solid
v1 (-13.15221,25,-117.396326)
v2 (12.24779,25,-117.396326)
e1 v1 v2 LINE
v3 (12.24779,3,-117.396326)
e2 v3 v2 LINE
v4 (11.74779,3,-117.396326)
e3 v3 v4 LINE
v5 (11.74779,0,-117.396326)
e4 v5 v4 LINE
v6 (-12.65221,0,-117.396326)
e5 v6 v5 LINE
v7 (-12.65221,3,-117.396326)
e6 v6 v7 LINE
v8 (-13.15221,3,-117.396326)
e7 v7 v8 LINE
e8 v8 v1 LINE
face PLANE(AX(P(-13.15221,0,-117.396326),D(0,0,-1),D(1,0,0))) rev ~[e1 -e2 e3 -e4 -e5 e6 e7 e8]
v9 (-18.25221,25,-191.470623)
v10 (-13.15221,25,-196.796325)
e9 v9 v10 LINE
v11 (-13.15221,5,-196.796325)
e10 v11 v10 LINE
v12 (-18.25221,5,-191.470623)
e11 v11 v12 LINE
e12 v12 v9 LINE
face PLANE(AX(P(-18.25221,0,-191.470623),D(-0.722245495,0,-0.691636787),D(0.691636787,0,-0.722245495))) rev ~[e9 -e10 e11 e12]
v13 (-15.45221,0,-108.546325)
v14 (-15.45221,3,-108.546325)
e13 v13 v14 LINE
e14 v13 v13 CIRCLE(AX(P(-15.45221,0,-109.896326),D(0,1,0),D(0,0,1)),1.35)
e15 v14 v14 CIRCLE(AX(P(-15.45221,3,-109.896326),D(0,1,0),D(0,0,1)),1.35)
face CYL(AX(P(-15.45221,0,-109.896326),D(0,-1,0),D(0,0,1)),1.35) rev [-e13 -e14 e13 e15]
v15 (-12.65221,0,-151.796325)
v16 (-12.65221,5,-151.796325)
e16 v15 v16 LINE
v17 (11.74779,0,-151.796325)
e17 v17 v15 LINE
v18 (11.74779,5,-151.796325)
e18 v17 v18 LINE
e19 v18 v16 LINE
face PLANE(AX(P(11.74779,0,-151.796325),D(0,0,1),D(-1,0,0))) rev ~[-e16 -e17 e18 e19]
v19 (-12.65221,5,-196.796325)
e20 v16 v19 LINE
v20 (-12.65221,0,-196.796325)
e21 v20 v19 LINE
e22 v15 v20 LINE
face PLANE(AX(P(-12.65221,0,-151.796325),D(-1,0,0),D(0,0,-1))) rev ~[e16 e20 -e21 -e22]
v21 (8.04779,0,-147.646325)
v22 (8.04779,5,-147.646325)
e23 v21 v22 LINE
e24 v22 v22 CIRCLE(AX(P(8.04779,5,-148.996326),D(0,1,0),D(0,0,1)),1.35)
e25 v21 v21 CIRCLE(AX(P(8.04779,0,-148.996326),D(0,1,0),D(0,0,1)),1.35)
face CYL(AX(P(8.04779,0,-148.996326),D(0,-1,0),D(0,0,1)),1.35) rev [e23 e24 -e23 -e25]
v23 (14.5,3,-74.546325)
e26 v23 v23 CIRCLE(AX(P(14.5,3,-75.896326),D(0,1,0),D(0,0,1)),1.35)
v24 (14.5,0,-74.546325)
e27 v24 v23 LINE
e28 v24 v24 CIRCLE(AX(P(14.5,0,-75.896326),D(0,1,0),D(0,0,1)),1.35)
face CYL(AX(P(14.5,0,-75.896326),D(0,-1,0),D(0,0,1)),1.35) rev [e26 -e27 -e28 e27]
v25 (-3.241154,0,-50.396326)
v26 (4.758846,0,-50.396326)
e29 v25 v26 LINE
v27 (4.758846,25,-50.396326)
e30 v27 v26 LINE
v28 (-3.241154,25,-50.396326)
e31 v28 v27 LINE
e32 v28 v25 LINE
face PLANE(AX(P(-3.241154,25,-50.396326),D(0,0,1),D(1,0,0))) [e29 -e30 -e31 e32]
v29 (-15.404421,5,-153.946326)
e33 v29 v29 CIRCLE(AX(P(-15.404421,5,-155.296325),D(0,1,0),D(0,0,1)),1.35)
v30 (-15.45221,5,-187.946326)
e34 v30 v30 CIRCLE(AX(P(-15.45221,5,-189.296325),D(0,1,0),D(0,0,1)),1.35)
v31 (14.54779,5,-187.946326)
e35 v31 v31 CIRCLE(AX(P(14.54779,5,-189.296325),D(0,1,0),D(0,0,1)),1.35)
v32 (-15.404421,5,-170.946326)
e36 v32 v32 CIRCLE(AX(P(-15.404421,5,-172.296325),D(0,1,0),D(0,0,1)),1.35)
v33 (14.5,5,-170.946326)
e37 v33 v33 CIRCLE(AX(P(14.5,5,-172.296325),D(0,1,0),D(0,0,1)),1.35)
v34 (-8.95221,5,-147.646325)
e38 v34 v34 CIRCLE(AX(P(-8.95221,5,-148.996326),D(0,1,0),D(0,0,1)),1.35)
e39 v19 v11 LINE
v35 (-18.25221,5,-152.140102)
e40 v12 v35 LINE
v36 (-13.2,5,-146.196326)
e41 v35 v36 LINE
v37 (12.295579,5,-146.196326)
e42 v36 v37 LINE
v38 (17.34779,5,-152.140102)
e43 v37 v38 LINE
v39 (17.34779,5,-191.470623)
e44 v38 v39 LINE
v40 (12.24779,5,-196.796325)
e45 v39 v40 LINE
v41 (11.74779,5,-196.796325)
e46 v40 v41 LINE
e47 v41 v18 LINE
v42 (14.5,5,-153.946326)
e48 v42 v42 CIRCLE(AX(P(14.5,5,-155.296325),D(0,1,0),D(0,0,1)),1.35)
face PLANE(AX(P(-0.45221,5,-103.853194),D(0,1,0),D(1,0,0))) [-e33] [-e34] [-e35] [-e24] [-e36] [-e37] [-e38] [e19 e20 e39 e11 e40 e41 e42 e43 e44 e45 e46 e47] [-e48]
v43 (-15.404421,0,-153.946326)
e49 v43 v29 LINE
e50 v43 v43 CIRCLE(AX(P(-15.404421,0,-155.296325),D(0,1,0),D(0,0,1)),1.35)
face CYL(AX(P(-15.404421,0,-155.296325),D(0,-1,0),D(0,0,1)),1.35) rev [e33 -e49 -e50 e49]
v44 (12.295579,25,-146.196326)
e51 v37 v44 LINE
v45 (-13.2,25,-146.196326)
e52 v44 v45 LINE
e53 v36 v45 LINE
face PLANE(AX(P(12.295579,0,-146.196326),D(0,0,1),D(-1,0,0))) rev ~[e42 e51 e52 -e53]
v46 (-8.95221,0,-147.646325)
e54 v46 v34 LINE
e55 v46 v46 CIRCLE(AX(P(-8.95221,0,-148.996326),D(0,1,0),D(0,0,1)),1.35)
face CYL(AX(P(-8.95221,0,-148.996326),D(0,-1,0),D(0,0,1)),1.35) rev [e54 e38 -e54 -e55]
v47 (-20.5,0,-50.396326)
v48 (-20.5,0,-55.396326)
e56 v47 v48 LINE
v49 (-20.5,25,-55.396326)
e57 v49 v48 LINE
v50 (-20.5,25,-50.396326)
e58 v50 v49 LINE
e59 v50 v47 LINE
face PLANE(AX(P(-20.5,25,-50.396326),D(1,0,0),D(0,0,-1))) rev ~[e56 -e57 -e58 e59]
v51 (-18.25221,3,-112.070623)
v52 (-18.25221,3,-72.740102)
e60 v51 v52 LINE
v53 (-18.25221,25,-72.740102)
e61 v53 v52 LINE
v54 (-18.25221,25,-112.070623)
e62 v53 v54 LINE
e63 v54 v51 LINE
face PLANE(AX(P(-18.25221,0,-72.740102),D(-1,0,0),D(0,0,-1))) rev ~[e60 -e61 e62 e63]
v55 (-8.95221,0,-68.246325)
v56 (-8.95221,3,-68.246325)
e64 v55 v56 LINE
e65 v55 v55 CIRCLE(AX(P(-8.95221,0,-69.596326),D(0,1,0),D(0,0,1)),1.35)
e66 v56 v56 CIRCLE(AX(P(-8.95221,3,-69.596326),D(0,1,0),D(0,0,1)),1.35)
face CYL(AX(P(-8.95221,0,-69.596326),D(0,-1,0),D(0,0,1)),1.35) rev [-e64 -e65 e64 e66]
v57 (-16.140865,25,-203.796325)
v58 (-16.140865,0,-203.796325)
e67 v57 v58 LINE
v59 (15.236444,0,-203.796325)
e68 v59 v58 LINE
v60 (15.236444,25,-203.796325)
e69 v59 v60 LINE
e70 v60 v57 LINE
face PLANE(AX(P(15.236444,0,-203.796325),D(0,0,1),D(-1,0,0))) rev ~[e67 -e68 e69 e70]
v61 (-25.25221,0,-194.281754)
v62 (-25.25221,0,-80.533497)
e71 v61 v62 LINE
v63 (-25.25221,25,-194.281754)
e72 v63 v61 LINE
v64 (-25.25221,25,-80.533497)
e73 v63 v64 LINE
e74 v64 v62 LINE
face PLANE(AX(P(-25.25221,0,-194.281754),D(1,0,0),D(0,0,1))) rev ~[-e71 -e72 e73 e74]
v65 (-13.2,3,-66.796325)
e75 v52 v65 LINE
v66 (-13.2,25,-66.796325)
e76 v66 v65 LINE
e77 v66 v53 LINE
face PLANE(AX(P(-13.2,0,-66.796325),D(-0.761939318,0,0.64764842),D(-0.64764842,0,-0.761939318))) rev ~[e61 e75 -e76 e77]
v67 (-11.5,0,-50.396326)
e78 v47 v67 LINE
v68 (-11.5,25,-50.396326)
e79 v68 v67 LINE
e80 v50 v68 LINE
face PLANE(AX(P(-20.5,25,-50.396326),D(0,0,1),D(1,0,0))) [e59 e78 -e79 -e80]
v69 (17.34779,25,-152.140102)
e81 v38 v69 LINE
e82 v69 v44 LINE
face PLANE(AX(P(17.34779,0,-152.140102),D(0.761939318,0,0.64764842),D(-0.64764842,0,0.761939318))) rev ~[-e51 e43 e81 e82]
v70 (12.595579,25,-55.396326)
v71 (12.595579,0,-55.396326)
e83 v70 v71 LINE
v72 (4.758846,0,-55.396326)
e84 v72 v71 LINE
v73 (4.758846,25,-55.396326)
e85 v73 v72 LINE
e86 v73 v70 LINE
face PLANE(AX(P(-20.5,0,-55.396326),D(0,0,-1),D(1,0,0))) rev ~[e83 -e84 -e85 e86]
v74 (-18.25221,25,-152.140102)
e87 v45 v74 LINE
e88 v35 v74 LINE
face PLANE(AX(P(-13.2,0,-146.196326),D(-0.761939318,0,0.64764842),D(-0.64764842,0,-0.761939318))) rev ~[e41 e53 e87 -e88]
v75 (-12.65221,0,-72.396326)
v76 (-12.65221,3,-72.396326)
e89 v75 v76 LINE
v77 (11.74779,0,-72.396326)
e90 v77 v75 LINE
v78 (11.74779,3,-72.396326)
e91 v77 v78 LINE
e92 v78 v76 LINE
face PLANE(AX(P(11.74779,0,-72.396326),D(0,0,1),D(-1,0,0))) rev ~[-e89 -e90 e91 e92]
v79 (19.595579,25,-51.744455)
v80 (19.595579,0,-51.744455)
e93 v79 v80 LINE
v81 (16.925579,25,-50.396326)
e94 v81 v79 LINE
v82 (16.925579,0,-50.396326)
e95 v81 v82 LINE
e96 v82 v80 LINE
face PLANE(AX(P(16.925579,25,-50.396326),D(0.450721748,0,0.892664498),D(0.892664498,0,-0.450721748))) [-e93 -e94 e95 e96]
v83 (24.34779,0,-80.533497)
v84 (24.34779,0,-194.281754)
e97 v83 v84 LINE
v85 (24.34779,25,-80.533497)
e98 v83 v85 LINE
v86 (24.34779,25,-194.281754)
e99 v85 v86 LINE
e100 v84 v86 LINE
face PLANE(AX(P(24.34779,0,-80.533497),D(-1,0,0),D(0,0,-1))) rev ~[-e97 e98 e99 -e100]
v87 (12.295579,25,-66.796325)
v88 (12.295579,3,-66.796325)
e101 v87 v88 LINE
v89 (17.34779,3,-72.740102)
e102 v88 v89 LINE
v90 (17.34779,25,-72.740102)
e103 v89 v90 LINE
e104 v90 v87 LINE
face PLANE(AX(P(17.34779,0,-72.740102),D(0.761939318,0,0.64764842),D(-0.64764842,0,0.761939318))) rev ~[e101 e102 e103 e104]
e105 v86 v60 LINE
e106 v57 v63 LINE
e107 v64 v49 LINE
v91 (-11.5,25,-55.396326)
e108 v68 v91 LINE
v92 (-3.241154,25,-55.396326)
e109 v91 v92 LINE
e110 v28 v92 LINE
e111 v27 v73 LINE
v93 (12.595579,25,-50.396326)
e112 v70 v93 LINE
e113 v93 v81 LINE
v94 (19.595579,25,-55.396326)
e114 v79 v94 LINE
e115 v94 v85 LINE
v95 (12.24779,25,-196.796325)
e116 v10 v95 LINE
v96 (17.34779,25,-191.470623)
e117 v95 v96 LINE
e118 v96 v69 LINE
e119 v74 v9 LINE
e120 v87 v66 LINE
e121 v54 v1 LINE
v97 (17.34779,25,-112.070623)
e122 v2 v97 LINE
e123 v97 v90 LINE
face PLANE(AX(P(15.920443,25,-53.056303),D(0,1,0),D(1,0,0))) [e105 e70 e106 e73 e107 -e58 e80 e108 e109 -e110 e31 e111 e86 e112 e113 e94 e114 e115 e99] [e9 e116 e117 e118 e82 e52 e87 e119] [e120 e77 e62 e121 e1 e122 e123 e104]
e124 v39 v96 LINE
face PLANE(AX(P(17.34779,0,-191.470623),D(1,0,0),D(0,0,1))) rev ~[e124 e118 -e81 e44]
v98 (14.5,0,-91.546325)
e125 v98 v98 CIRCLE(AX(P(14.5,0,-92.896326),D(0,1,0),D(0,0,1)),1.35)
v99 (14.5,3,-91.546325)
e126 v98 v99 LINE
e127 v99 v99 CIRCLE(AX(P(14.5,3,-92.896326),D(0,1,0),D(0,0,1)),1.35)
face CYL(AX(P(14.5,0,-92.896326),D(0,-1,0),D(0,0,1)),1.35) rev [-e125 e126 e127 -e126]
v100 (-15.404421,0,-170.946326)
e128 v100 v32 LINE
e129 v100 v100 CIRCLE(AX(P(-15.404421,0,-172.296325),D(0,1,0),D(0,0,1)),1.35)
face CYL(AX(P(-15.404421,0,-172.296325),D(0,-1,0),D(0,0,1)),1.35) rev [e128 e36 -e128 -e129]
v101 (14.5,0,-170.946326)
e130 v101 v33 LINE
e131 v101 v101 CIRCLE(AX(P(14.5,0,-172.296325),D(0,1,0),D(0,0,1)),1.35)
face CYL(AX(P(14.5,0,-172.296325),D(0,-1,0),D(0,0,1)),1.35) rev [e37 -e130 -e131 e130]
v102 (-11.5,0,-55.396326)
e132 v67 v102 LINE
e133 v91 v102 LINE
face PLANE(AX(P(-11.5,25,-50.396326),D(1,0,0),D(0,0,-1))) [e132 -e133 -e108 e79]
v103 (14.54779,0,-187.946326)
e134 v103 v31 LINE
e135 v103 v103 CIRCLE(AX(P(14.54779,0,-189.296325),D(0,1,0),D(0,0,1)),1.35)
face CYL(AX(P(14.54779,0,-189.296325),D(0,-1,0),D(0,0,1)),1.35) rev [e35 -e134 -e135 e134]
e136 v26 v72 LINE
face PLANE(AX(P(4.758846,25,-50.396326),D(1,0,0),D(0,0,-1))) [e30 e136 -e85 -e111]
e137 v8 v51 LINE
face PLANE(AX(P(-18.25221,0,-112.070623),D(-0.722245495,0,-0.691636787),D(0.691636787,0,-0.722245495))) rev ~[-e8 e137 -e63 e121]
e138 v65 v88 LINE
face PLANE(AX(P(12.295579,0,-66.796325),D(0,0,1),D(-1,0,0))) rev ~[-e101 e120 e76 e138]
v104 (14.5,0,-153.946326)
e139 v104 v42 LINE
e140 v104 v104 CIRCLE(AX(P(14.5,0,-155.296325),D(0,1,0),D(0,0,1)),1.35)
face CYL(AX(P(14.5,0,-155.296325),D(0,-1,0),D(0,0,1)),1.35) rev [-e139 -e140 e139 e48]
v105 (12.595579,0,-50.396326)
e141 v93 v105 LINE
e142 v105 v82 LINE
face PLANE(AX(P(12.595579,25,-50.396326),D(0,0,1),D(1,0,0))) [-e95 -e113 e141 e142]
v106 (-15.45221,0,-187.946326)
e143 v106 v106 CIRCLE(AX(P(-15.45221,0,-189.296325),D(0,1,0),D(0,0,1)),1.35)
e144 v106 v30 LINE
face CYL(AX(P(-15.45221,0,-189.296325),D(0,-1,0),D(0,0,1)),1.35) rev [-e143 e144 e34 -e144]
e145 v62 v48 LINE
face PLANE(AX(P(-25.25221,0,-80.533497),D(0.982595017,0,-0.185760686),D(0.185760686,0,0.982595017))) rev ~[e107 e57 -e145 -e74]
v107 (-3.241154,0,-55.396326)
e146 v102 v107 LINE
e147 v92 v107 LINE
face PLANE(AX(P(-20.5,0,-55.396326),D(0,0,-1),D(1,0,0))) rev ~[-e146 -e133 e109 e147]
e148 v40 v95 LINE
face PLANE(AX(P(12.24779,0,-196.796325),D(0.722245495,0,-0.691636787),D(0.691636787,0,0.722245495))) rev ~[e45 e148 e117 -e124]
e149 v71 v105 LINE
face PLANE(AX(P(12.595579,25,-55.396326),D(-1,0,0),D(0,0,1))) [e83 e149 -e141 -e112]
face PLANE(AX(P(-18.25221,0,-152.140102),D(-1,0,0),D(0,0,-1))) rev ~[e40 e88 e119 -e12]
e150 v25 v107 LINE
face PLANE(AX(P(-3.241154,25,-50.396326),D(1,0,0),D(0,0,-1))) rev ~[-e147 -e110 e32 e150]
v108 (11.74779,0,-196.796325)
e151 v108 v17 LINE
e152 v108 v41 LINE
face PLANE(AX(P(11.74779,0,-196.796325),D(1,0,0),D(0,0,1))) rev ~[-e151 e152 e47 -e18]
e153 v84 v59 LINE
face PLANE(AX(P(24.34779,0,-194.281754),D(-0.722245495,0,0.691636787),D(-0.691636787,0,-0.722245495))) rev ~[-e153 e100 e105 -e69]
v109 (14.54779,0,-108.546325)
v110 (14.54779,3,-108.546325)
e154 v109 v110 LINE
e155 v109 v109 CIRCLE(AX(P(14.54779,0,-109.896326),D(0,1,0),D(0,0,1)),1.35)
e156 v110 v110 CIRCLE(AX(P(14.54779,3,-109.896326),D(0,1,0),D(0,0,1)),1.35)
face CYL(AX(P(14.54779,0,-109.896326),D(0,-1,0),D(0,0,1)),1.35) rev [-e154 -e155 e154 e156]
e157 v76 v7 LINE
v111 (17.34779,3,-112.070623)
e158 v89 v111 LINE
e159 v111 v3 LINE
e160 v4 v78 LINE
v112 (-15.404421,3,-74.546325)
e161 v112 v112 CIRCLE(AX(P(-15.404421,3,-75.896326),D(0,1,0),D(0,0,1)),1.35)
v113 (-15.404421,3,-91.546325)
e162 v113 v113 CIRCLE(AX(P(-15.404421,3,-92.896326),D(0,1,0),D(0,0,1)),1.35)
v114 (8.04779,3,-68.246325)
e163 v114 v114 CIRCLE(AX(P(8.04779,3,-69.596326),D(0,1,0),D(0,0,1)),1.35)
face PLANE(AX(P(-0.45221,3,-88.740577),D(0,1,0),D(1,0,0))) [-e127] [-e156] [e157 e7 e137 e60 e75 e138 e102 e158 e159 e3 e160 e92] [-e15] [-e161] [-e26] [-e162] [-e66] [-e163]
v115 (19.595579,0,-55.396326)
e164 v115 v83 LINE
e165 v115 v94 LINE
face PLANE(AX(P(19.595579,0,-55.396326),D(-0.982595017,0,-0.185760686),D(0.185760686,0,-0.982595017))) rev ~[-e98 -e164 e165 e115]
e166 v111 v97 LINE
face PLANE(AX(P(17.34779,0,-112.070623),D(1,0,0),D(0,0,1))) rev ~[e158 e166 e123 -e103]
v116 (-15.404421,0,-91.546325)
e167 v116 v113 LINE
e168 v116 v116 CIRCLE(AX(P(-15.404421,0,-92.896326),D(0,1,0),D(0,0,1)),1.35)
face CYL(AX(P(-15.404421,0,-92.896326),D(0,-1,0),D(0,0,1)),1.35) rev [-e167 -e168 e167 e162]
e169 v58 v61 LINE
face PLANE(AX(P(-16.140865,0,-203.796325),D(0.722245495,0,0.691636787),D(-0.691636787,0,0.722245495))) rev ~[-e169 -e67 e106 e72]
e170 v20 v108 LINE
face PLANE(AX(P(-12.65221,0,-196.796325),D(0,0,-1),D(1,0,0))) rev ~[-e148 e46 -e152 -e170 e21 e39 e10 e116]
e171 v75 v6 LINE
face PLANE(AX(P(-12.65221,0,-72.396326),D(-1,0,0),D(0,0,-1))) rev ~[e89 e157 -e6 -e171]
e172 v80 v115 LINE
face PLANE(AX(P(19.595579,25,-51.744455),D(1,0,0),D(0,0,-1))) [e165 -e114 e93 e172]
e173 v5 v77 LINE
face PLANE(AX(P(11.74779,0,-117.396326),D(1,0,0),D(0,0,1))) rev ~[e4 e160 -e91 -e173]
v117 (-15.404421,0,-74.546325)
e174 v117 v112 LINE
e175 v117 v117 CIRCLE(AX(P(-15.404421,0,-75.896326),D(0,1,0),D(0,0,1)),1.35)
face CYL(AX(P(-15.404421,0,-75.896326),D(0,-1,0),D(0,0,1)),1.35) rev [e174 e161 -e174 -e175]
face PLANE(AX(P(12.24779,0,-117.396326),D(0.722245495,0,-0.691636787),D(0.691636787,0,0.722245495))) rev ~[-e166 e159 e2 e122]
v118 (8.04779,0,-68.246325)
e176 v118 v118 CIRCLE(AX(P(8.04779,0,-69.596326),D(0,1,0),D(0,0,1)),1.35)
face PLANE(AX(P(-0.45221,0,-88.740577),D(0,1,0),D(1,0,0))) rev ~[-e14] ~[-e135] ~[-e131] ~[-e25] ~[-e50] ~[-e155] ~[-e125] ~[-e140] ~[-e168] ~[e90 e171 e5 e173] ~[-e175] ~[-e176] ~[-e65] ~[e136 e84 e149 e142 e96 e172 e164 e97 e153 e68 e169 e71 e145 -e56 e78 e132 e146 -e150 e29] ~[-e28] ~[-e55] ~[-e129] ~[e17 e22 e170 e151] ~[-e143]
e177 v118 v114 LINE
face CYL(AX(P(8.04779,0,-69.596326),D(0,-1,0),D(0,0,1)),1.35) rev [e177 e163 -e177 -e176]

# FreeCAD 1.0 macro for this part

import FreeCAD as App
import Part
import Sketcher
from FreeCAD import Vector
Q = App.Units.Quantity

doc = App.newDocument("Part")
body = doc.addObject("PartDesign::Body", "Body")

# Sketch on XZ plane
sketch1 = body.newObject("Sketcher::SketchObject", "Sketch")
sketch1.AttachmentSupport = (doc.getObject("XZ_Plane"), [""])
sketch1.MapMode = "FlatFace"
sketch1.addGeometry([
    Part.LineSegment(Vector(-20.5, -55.4, 0), Vector(19.6, -55.4, 0)),  # 0
    Part.LineSegment(Vector(19.6, -55.4, 0), Vector(24.3, -80.5, 0)),  # 1
    Part.LineSegment(Vector(24.3, -80.5, 0), Vector(24.3, -194.3, 0)),  # 2
    Part.LineSegment(Vector(24.3, -194.3, 0), Vector(15.2, -203.8, 0)),  # 3
    Part.LineSegment(Vector(15.2, -203.8, 0), Vector(-16.1, -203.8, 0)),  # 4
    Part.LineSegment(Vector(-16.1, -203.8, 0), Vector(-25.3, -194.3, 0)),  # 5
    Part.LineSegment(Vector(-25.3, -194.3, 0), Vector(-25.3, -80.5, 0)),  # 6
    Part.LineSegment(Vector(-25.3, -80.5, 0), Vector(-20.5, -55.4, 0)),  # 7
    Part.LineSegment(Vector(-18.3, -112.1, 0), Vector(-13.2, -117.4, 0)),  # 8
    Part.LineSegment(Vector(-13.2, -117.4, 0), Vector(12.2, -117.4, 0)),  # 9
    Part.LineSegment(Vector(12.2, -117.4, 0), Vector(17.3, -112.1, 0)),  # 10
    Part.LineSegment(Vector(17.3, -112.1, 0), Vector(17.3, -72.7, 0)),  # 11
    Part.LineSegment(Vector(17.3, -72.7, 0), Vector(12.3, -66.8, 0)),  # 12
    Part.LineSegment(Vector(12.3, -66.8, 0), Vector(-13.2, -66.8, 0)),  # 13
    Part.LineSegment(Vector(-13.2, -66.8, 0), Vector(-18.3, -72.7, 0)),  # 14
    Part.LineSegment(Vector(-18.3, -72.7, 0), Vector(-18.3, -112.1, 0)),  # 15
    Part.Circle(Vector(-15.4, -155.3, 0), Vector(0, 0, 1), 1.4),  # 16
    Part.Circle(Vector(-9, -149, 0), Vector(0, 0, 1), 1.4),  # 17
    Part.Circle(Vector(-15.4, -172.3, 0), Vector(0, 0, 1), 1.4),  # 18
    Part.Circle(Vector(-15.5, -189.3, 0), Vector(0, 0, 1), 1.4),  # 19
    Part.Circle(Vector(8, -149, 0), Vector(0, 0, 1), 1.4),  # 20
    Part.Circle(Vector(14.5, -155.3, 0), Vector(0, 0, 1), 1.4),  # 21
    Part.LineSegment(Vector(-12.7, -196.8, 0), Vector(11.7, -196.8, 0)),  # 22
    Part.LineSegment(Vector(11.7, -196.8, 0), Vector(11.7, -151.8, 0)),  # 23
    Part.LineSegment(Vector(11.7, -151.8, 0), Vector(-12.7, -151.8, 0)),  # 24
    Part.LineSegment(Vector(-12.7, -151.8, 0), Vector(-12.7, -196.8, 0)),  # 25
    Part.Circle(Vector(14.5, -172.3, 0), Vector(0, 0, 1), 1.4),  # 26
    Part.Circle(Vector(14.5, -189.3, 0), Vector(0, 0, 1), 1.4),  # 27
], False)
sketch1.addConstraint([
    Sketcher.Constraint("Coincident", 0, 2, 1, 1),
    Sketcher.Constraint("Coincident", 1, 2, 2, 1),
    Sketcher.Constraint("Coincident", 2, 2, 3, 1),
    Sketcher.Constraint("Coincident", 3, 2, 4, 1),
    Sketcher.Constraint("Coincident", 4, 2, 5, 1),
    Sketcher.Constraint("Coincident", 5, 2, 6, 1),
    Sketcher.Constraint("Coincident", 6, 2, 7, 1),
    Sketcher.Constraint("Coincident", 7, 2, 0, 1),
    Sketcher.Constraint("Coincident", 8, 2, 9, 1),
    Sketcher.Constraint("Coincident", 9, 2, 10, 1),
    Sketcher.Constraint("Coincident", 10, 2, 11, 1),
    Sketcher.Constraint("Coincident", 11, 2, 12, 1),
    Sketcher.Constraint("Coincident", 12, 2, 13, 1),
    Sketcher.Constraint("Coincident", 13, 2, 14, 1),
    Sketcher.Constraint("Coincident", 14, 2, 15, 1),
    Sketcher.Constraint("Coincident", 15, 2, 8, 1),
    Sketcher.Constraint("Coincident", 22, 2, 23, 1),
    Sketcher.Constraint("Coincident", 23, 2, 24, 1),
    Sketcher.Constraint("Coincident", 24, 2, 25, 1),
    Sketcher.Constraint("Coincident", 25, 2, 22, 1),
    Sketcher.Constraint("Horizontal", 0),
    Sketcher.Constraint("Vertical", 2),
    Sketcher.Constraint("Horizontal", 4),
    Sketcher.Constraint("Vertical", 6),
    Sketcher.Constraint("Horizontal", 9),
    Sketcher.Constraint("Vertical", 11),
    Sketcher.Constraint("Horizontal", 13),
    Sketcher.Constraint("Vertical", 15),
    Sketcher.Constraint("Horizontal", 22),
    Sketcher.Constraint("Vertical", 23),
    Sketcher.Constraint("Horizontal", 24),
    Sketcher.Constraint("Vertical", 25),
    Sketcher.Constraint("Equal", 16, 17),
    Sketcher.Constraint("Equal", 17, 18),
    Sketcher.Constraint("Equal", 18, 19),
    Sketcher.Constraint("Equal", 19, 20),
    Sketcher.Constraint("Equal", 20, 21),
    Sketcher.Constraint("Equal", 21, 26),
    Sketcher.Constraint("Equal", 26, 27),
    Sketcher.Constraint("Parallel", 5, 8),
    Sketcher.Constraint("Parallel", 3, 10),
    Sketcher.Constraint("Horizontal", 17, 3, 20, 3),
    Sketcher.Constraint("Horizontal", 16, 3, 21, 3),
    Sketcher.Constraint("Horizontal", 18, 3, 26, 3),
    Sketcher.Constraint("Horizontal", 19, 3, 27, 3),
    Sketcher.Constraint("Horizontal", 2, 2, 5, 2),
    Sketcher.Constraint("Horizontal", 1, 2, 6, 2),
    Sketcher.Constraint("Horizontal", 11, 2, 14, 2),
    Sketcher.Constraint("Horizontal", 10, 2, 15, 2),
    Sketcher.Constraint("Vertical", 16, 3, 18, 3),
    Sketcher.Constraint("Vertical", 21, 3, 26, 3),
    Sketcher.Constraint("Equal", 3, 5),
    Sketcher.Constraint("Equal", 1, 7),
    Sketcher.Constraint("Equal", 12, 14),
    Sketcher.Constraint("Diameter", 16, 2.7),
    Sketcher.Constraint("DistanceY", 23, 1, 23, 2, 45.0),
    Sketcher.Constraint("DistanceX", 9, 1, 9, 2, 25.4),
    Sketcher.Constraint("DistanceX", 22, 1, 22, 2, 24.4),
    Sketcher.Constraint("DistanceY", 18, 3, 16, 3, 17.0),
    Sketcher.Constraint("DistanceY", 19, 3, 18, 3, 17.0),
    Sketcher.Constraint("DistanceX", 17, 3, 20, 3, 17.0),
    Sketcher.Constraint("DistanceX", 19, 3, 27, 3, 30.0),
    Sketcher.Constraint("DistanceX", 16, 3, 0, 2, 35.0),
    Sketcher.Constraint("DistanceX", 10, 2, 1, 2, 7.0),
    Sketcher.Constraint("DistanceX", 6, 2, 14, 2, 7.0),
    Sketcher.Constraint("DistanceY", 3, 2, 22, 2, 7.0),
    Sketcher.Constraint("DistanceX", -1, 1, 21, 3, 14.5),
    Sketcher.Constraint("DistanceX", 7, 2, -1, 1, 20.5),
    Sketcher.Constraint("DistanceX", 13, 2, -1, 1, 13.2),
    Sketcher.Constraint("DistanceY", 16, 3, 17, 3, 6.3),
    Sketcher.Constraint("DistanceX", 19, 3, 17, 3, 6.5),
    Sketcher.Constraint("DistanceY", 20, 3, 0, 2, 93.6),
    Sketcher.Constraint("DistanceX", 20, 3, 1, 2, 16.3),
    Sketcher.Constraint("DistanceY", 3, 2, 27, 3, 14.5),
    Sketcher.Constraint("DistanceX", 5, 2, 19, 3, 9.8),
    Sketcher.Constraint("DistanceY", 17, 3, 8, 2, 31.6),
    Sketcher.Constraint("DistanceY", 12, 2, 0, 2, 11.4),
    Sketcher.Constraint("DistanceX", 22, 2, 27, 3, 2.8),
    Sketcher.Constraint("Distance", 3, 13.173598),
    Sketcher.Constraint("DistanceX", 0, 1, 0, 2, 40.095579),
    Sketcher.Constraint("DistanceX", 4, 2, 4, 1, 31.37731),
    Sketcher.Constraint("DistanceY", 11, 1, 11, 2, 39.33052),
    Sketcher.Constraint("DistanceY", 2, 2, 2, 1, 113.748256),
    Sketcher.Constraint("DistanceY", 16, 3, -1, 1, 155.296325),
])
pad1 = body.newObject("PartDesign::Pad", "Pad")
pad1.Profile = sketch1
pad1.Length = 5
pad1.Reversed = True

# Sketch on XZ plane
sketch2 = body.newObject("Sketcher::SketchObject", "Sketch001")
sketch2.AttachmentSupport = (doc.getObject("XZ_Plane"), [""])
sketch2.MapMode = "FlatFace"
sketch2.addGeometry([
    Part.LineSegment(Vector(-20, -55, 0), Vector(20, -55, 0)),  # 0
    Part.LineSegment(Vector(20, -55, 0), Vector(24, -81, 0)),  # 1
    Part.LineSegment(Vector(24, -81, 0), Vector(24, -194, 0)),  # 2
    Part.LineSegment(Vector(24, -194, 0), Vector(15, -204, 0)),  # 3
    Part.LineSegment(Vector(15, -204, 0), Vector(-16, -204, 0)),  # 4
    Part.LineSegment(Vector(-16, -204, 0), Vector(-25, -194, 0)),  # 5
    Part.LineSegment(Vector(-25, -194, 0), Vector(-25, -81, 0)),  # 6
    Part.LineSegment(Vector(-25, -81, 0), Vector(-20, -55, 0)),  # 7
    Part.LineSegment(Vector(-18, -112, 0), Vector(-13, -117, 0)),  # 8
    Part.LineSegment(Vector(-13, -117, 0), Vector(12, -117, 0)),  # 9
    Part.LineSegment(Vector(12, -117, 0), Vector(17, -112, 0)),  # 10
    Part.LineSegment(Vector(17, -112, 0), Vector(17, -73, 0)),  # 11
    Part.LineSegment(Vector(17, -73, 0), Vector(12, -67, 0)),  # 12
    Part.LineSegment(Vector(12, -67, 0), Vector(-13, -67, 0)),  # 13
    Part.LineSegment(Vector(-13, -67, 0), Vector(-18, -73, 0)),  # 14
    Part.LineSegment(Vector(-18, -73, 0), Vector(-18, -112, 0)),  # 15
    Part.LineSegment(Vector(-13, -197, 0), Vector(12, -197, 0)),  # 16
    Part.LineSegment(Vector(12, -197, 0), Vector(17, -191, 0)),  # 17
    Part.LineSegment(Vector(17, -191, 0), Vector(17, -152, 0)),  # 18
    Part.LineSegment(Vector(17, -152, 0), Vector(12, -146, 0)),  # 19
    Part.LineSegment(Vector(12, -146, 0), Vector(-13, -146, 0)),  # 20
    Part.LineSegment(Vector(-13, -146, 0), Vector(-18, -152, 0)),  # 21
    Part.LineSegment(Vector(-18, -152, 0), Vector(-18, -191, 0)),  # 22
    Part.LineSegment(Vector(-18, -191, 0), Vector(-13, -197, 0)),  # 23
], False)
sketch2.addConstraint([
    Sketcher.Constraint("Coincident", 0, 2, 1, 1),
    Sketcher.Constraint("Coincident", 1, 2, 2, 1),
    Sketcher.Constraint("Coincident", 2, 2, 3, 1),
    Sketcher.Constraint("Coincident", 3, 2, 4, 1),
    Sketcher.Constraint("Coincident", 4, 2, 5, 1),
    Sketcher.Constraint("Coincident", 5, 2, 6, 1),
    Sketcher.Constraint("Coincident", 6, 2, 7, 1),
    Sketcher.Constraint("Coincident", 7, 2, 0, 1),
    Sketcher.Constraint("Coincident", 8, 2, 9, 1),
    Sketcher.Constraint("Coincident", 9, 2, 10, 1),
    Sketcher.Constraint("Coincident", 10, 2, 11, 1),
    Sketcher.Constraint("Coincident", 11, 2, 12, 1),
    Sketcher.Constraint("Coincident", 12, 2, 13, 1),
    Sketcher.Constraint("Coincident", 13, 2, 14, 1),
    Sketcher.Constraint("Coincident", 14, 2, 15, 1),
    Sketcher.Constraint("Coincident", 15, 2, 8, 1),
    Sketcher.Constraint("Coincident", 16, 2, 17, 1),
    Sketcher.Constraint("Coincident", 17, 2, 18, 1),
    Sketcher.Constraint("Coincident", 18, 2, 19, 1),
    Sketcher.Constraint("Coincident", 19, 2, 20, 1),
    Sketcher.Constraint("Coincident", 20, 2, 21, 1),
    Sketcher.Constraint("Coincident", 21, 2, 22, 1),
    Sketcher.Constraint("Coincident", 22, 2, 23, 1),
    Sketcher.Constraint("Coincident", 23, 2, 16, 1),
    Sketcher.Constraint("Horizontal", 0),
    Sketcher.Constraint("Vertical", 2),
    Sketcher.Constraint("Horizontal", 4),
    Sketcher.Constraint("Vertical", 6),
    Sketcher.Constraint("Horizontal", 9),
    Sketcher.Constraint("Vertical", 11),
    Sketcher.Constraint("Horizontal", 13),
    Sketcher.Constraint("Vertical", 15),
    Sketcher.Constraint("Horizontal", 16),
    Sketcher.Constraint("Vertical", 18),
    Sketcher.Constraint("Horizontal", 20),
    Sketcher.Constraint("Vertical", 22),
    Sketcher.Constraint("Parallel", 5, 8),
    Sketcher.Constraint("Parallel", 3, 10),
    Sketcher.Constraint("Parallel", 10, 17),
    Sketcher.Constraint("Parallel", 12, 19),
    Sketcher.Constraint("Parallel", 14, 21),
    Sketcher.Constraint("Parallel", 8, 23),
    Sketcher.Constraint("Horizontal", 2, 2, 5, 2),
    Sketcher.Constraint("Horizontal", 1, 2, 6, 2),
    Sketcher.Constraint("Horizontal", 11, 2, 14, 2),
    Sketcher.Constraint("Horizontal", 10, 2, 15, 2),
    Sketcher.Constraint("Horizontal", 18, 2, 21, 2),
    Sketcher.Constraint("Horizontal", 17, 2, 22, 2),
    Sketcher.Constraint("Vertical", 9, 2, 16, 2),
    Sketcher.Constraint("Vertical", 11, 2, 17, 2),
    Sketcher.Constraint("Vertical", 12, 2, 19, 2),
    Sketcher.Constraint("Vertical", 13, 2, 20, 2),
    Sketcher.Constraint("Equal", 15, 18),
    Sketcher.Constraint("Equal", 3, 5),
    Sketcher.Constraint("Equal", 1, 7),
    Sketcher.Constraint("Equal", 12, 14),
    Sketcher.Constraint("DistanceX", 9, 1, 9, 2, 25.4),
    Sketcher.Constraint("DistanceY", 8, 2, 7, 2, 62.0),
    Sketcher.Constraint("DistanceX", 10, 2, 1, 2, 7.0),
    Sketcher.Constraint("DistanceX", 6, 2, 14, 2, 7.0),
    Sketcher.Constraint("DistanceY", 3, 2, 16, 2, 7.0),
    Sketcher.Constraint("DistanceX", 7, 2, -1, 1, 20.5),
    Sketcher.Constraint("DistanceX", 13, 2, -1, 1, 13.2),
    Sketcher.Constraint("DistanceY", 3, 2, 0, 2, 148.4),
    Sketcher.Constraint("DistanceX", 5, 2, 2, 2, 49.6),
    Sketcher.Constraint("DistanceY", 12, 2, 0, 2, 11.4),
    Sketcher.Constraint("Distance", 3, 13.173598),
    Sketcher.Constraint("DistanceX", 0, 1, 0, 2, 40.095579),
    Sketcher.Constraint("DistanceX", 4, 2, 4, 1, 31.37731),
    Sketcher.Constraint("DistanceY", 11, 1, 11, 2, 39.33052),
    Sketcher.Constraint("DistanceY", 2, 2, 2, 1, 113.748256),
    Sketcher.Constraint("DistanceY", 0, 2, -1, 1, 55.396326),
])
pad2 = body.newObject("PartDesign::Pad", "Pad001")
pad2.Profile = sketch2
pad2.Length = 25
pad2.Reversed = True

# Sketch on XZ plane
sketch3 = body.newObject("Sketcher::SketchObject", "Sketch002")
sketch3.AttachmentSupport = (doc.getObject("XZ_Plane"), [""])
sketch3.MapMode = "FlatFace"
sketch3.AttachmentOffset = App.Placement(Vector(0, 0, -25), App.Rotation())
sketch3.addGeometry([
    Part.LineSegment(Vector(19.6, -51.7, 0), Vector(19.6, -55.4, 0)),  # 0
    Part.LineSegment(Vector(19.6, -55.4, 0), Vector(12.6, -55.4, 0)),  # 1
    Part.LineSegment(Vector(12.6, -55.4, 0), Vector(12.6, -50.4, 0)),  # 2
    Part.LineSegment(Vector(12.6, -50.4, 0), Vector(16.9, -50.4, 0)),  # 3
    Part.LineSegment(Vector(16.9, -50.4, 0), Vector(19.6, -51.7, 0)),  # 4
    Part.LineSegment(Vector(-3.2, -55.4, 0), Vector(-3.2, -50.4, 0)),  # 5
    Part.LineSegment(Vector(-3.2, -50.4, 0), Vector(4.8, -50.4, 0)),  # 6
    Part.LineSegment(Vector(4.8, -50.4, 0), Vector(4.8, -55.4, 0)),  # 7
    Part.LineSegment(Vector(4.8, -55.4, 0), Vector(-3.2, -55.4, 0)),  # 8
    Part.LineSegment(Vector(-20.5, -55.4, 0), Vector(-20.5, -50.4, 0)),  # 9
    Part.LineSegment(Vector(-20.5, -50.4, 0), Vector(-11.5, -50.4, 0)),  # 10
    Part.LineSegment(Vector(-11.5, -50.4, 0), Vector(-11.5, -55.4, 0)),  # 11
    Part.LineSegment(Vector(-11.5, -55.4, 0), Vector(-20.5, -55.4, 0)),  # 12
], False)
sketch3.addConstraint([
    Sketcher.Constraint("Coincident", 0, 2, 1, 1),
    Sketcher.Constraint("Coincident", 1, 2, 2, 1),
    Sketcher.Constraint("Coincident", 2, 2, 3, 1),
    Sketcher.Constraint("Coincident", 3, 2, 4, 1),
    Sketcher.Constraint("Coincident", 4, 2, 0, 1),
    Sketcher.Constraint("Coincident", 5, 2, 6, 1),
    Sketcher.Constraint("Coincident", 6, 2, 7, 1),
    Sketcher.Constraint("Coincident", 7, 2, 8, 1),
    Sketcher.Constraint("Coincident", 8, 2, 5, 1),
    Sketcher.Constraint("Coincident", 9, 2, 10, 1),
    Sketcher.Constraint("Coincident", 10, 2, 11, 1),
    Sketcher.Constraint("Coincident", 11, 2, 12, 1),
    Sketcher.Constraint("Coincident", 12, 2, 9, 1),
    Sketcher.Constraint("Vertical", 0),
    Sketcher.Constraint("Horizontal", 1),
    Sketcher.Constraint("Vertical", 2),
    Sketcher.Constraint("Horizontal", 3),
    Sketcher.Constraint("Vertical", 5),
    Sketcher.Constraint("Horizontal", 6),
    Sketcher.Constraint("Vertical", 7),
    Sketcher.Constraint("Horizontal", 8),
    Sketcher.Constraint("Vertical", 9),
    Sketcher.Constraint("Horizontal", 10),
    Sketcher.Constraint("Vertical", 11),
    Sketcher.Constraint("Horizontal", 12),
    Sketcher.Constraint("Horizontal", 3, 2, 5, 2),
    Sketcher.Constraint("Horizontal", 1, 2, 7, 2),
    Sketcher.Constraint("Horizontal", 6, 2, 9, 2),
    Sketcher.Constraint("Horizontal", 8, 2, 11, 2),
    Sketcher.Constraint("DistanceX", 1, 2, 1, 1, 7.0),
    Sketcher.Constraint("DistanceX", 6, 1, 6, 2, 8.0),
    Sketcher.Constraint("DistanceX", 10, 1, 10, 2, 9.0),
    Sketcher.Constraint("DistanceY", 2, 1, 2, 2, 5.0),
    Sketcher.Constraint("DistanceX", 3, 1, 3, 2, 4.33),
    Sketcher.Constraint("DistanceX", 9, 2, -1, 1, 20.5),
    Sketcher.Constraint("Angle", 4, Q("-26.79 deg")),
    Sketcher.Constraint("DistanceX", -1, 1, 0, 2, 19.595579),
    Sketcher.Constraint("DistanceY", 0, 2, -1, 1, 55.396326),
    Sketcher.Constraint("DistanceX", 5, 2, -1, 1, 3.241154),
])
pad3 = body.newObject("PartDesign::Pad", "Pad002")
pad3.Profile = sketch3
pad3.Length = 25

# Sketch on XZ plane
sketch4 = body.newObject("Sketcher::SketchObject", "Sketch003")
sketch4.AttachmentSupport = (doc.getObject("XZ_Plane"), [""])
sketch4.MapMode = "FlatFace"
sketch4.addGeometry([
    Part.LineSegment(Vector(-12.7, -72.4, 0), Vector(-12.7, -117.4, 0)),  # 0
    Part.LineSegment(Vector(-12.7, -117.4, 0), Vector(-13.2, -117.4, 0)),  # 1
    Part.LineSegment(Vector(-13.2, -117.4, 0), Vector(-18.3, -112.1, 0)),  # 2
    Part.LineSegment(Vector(-18.3, -112.1, 0), Vector(-18.3, -72.7, 0)),  # 3
    Part.LineSegment(Vector(-18.3, -72.7, 0), Vector(-13.2, -66.8, 0)),  # 4
    Part.LineSegment(Vector(-13.2, -66.8, 0), Vector(12.3, -66.8, 0)),  # 5
    Part.LineSegment(Vector(12.3, -66.8, 0), Vector(17.3, -72.7, 0)),  # 6
    Part.LineSegment(Vector(17.3, -72.7, 0), Vector(17.3, -112.1, 0)),  # 7
    Part.LineSegment(Vector(17.3, -112.1, 0), Vector(12.2, -117.4, 0)),  # 8
    Part.LineSegment(Vector(12.2, -117.4, 0), Vector(11.7, -117.4, 0)),  # 9
    Part.LineSegment(Vector(11.7, -117.4, 0), Vector(11.7, -72.4, 0)),  # 10
    Part.LineSegment(Vector(11.7, -72.4, 0), Vector(-12.7, -72.4, 0)),  # 11
    Part.Circle(Vector(-9, -69.6, 0), Vector(0, 0, 1), 1.4),  # 12
    Part.Circle(Vector(-15.4, -75.9, 0), Vector(0, 0, 1), 1.4),  # 13
    Part.Circle(Vector(8, -69.6, 0), Vector(0, 0, 1), 1.4),  # 14
    Part.Circle(Vector(14.5, -75.9, 0), Vector(0, 0, 1), 1.4),  # 15
    Part.Circle(Vector(-15.4, -92.9, 0), Vector(0, 0, 1), 1.4),  # 16
    Part.Circle(Vector(-15.5, -109.9, 0), Vector(0, 0, 1), 1.4),  # 17
    Part.Circle(Vector(14.5, -92.9, 0), Vector(0, 0, 1), 1.4),  # 18
    Part.Circle(Vector(14.5, -109.9, 0), Vector(0, 0, 1), 1.4),  # 19
], False)
sketch4.addConstraint([
    Sketcher.Constraint("Coincident", 0, 2, 1, 1),
    Sketcher.Constraint("Coincident", 1, 2, 2, 1),
    Sketcher.Constraint("Coincident", 2, 2, 3, 1),
    Sketcher.Constraint("Coincident", 3, 2, 4, 1),
    Sketcher.Constraint("Coincident", 4, 2, 5, 1),
    Sketcher.Constraint("Coincident", 5, 2, 6, 1),
    Sketcher.Constraint("Coincident", 6, 2, 7, 1),
    Sketcher.Constraint("Coincident", 7, 2, 8, 1),
    Sketcher.Constraint("Coincident", 8, 2, 9, 1),
    Sketcher.Constraint("Coincident", 9, 2, 10, 1),
    Sketcher.Constraint("Coincident", 10, 2, 11, 1),
    Sketcher.Constraint("Coincident", 11, 2, 0, 1),
    Sketcher.Constraint("Vertical", 0),
    Sketcher.Constraint("Horizontal", 1),
    Sketcher.Constraint("Vertical", 3),
    Sketcher.Constraint("Horizontal", 5),
    Sketcher.Constraint("Vertical", 7),
    Sketcher.Constraint("Horizontal", 9),
    Sketcher.Constraint("Vertical", 10),
    Sketcher.Constraint("Horizontal", 11),
    Sketcher.Constraint("Equal", 12, 13),
    Sketcher.Constraint("Equal", 13, 14),
    Sketcher.Constraint("Equal", 14, 15),
    Sketcher.Constraint("Equal", 15, 16),
    Sketcher.Constraint("Equal", 16, 17),
    Sketcher.Constraint("Equal", 17, 18),
    Sketcher.Constraint("Equal", 18, 19),
    Sketcher.Constraint("Horizontal", 12, 3, 14, 3),
    Sketcher.Constraint("Horizontal", 13, 3, 15, 3),
    Sketcher.Constraint("Horizontal", 16, 3, 18, 3),
    Sketcher.Constraint("Horizontal", 17, 3, 19, 3),
    Sketcher.Constraint("Horizontal", 3, 2, 6, 2),
    Sketcher.Constraint("Horizontal", 2, 2, 7, 2),
    Sketcher.Constraint("Horizontal", 1, 2, 8, 2),
    Sketcher.Constraint("Vertical", 13, 3, 16, 3),
    Sketcher.Constraint("Vertical", 15, 3, 18, 3),
    Sketcher.Constraint("Equal", 1, 9),
    Sketcher.Constraint("Equal", 4, 6),
    Sketcher.Constraint("Equal", 2, 8),
    Sketcher.Constraint("Diameter", 12, 2.7),
    Sketcher.Constraint("DistanceY", 0, 2, 0, 1, 45.0),
    Sketcher.Constraint("DistanceX", 1, 2, 1, 1, 0.5),
    Sketcher.Constraint("DistanceX", 11, 2, 11, 1, 24.4),
    Sketcher.Constraint("DistanceX", 12, 3, 14, 3, 17.0),
    Sketcher.Constraint("DistanceY", 16, 3, 13, 3, 17.0),
    Sketcher.Constraint("DistanceY", 17, 3, 16, 3, 17.0),
    Sketcher.Constraint("DistanceX", 17, 3, 19, 3, 30.0),
    Sketcher.Constraint("DistanceX", 0, 2, 7, 2, 30.0),
    Sketcher.Constraint("DistanceX", -1, 1, 15, 3, 14.5),
    Sketcher.Constraint("DistanceX", 4, 2, -1, 1, 13.2),
    Sketcher.Constraint("DistanceY", 13, 3, 12, 3, 6.3),
    Sketcher.Constraint("DistanceX", 17, 3, 12, 3, 6.5),
    Sketcher.Constraint("DistanceX", 17, 3, 0, 2, 2.8),
    Sketcher.Constraint("DistanceY", 0, 2, 17, 3, 7.5),
    Sketcher.Constraint("DistanceY", 12, 3, 4, 2, 2.8),
    Sketcher.Constraint("DistanceX", 5, 1, 5, 2, 25.495579),
    Sketcher.Constraint("DistanceY", 3, 1, 3, 2, 39.33052),
    Sketcher.Constraint("DistanceX", 13, 3, -1, 1, 15.404421),
    Sketcher.Constraint("Distance", 2, 7.373813),
    Sketcher.Constraint("DistanceY", 12, 3, -1, 1, 69.596326),
])
pad4 = body.newObject("PartDesign::Pad", "Pad003")
pad4.Profile = sketch4
pad4.Length = 3
pad4.Reversed = True

doc.recompute()
